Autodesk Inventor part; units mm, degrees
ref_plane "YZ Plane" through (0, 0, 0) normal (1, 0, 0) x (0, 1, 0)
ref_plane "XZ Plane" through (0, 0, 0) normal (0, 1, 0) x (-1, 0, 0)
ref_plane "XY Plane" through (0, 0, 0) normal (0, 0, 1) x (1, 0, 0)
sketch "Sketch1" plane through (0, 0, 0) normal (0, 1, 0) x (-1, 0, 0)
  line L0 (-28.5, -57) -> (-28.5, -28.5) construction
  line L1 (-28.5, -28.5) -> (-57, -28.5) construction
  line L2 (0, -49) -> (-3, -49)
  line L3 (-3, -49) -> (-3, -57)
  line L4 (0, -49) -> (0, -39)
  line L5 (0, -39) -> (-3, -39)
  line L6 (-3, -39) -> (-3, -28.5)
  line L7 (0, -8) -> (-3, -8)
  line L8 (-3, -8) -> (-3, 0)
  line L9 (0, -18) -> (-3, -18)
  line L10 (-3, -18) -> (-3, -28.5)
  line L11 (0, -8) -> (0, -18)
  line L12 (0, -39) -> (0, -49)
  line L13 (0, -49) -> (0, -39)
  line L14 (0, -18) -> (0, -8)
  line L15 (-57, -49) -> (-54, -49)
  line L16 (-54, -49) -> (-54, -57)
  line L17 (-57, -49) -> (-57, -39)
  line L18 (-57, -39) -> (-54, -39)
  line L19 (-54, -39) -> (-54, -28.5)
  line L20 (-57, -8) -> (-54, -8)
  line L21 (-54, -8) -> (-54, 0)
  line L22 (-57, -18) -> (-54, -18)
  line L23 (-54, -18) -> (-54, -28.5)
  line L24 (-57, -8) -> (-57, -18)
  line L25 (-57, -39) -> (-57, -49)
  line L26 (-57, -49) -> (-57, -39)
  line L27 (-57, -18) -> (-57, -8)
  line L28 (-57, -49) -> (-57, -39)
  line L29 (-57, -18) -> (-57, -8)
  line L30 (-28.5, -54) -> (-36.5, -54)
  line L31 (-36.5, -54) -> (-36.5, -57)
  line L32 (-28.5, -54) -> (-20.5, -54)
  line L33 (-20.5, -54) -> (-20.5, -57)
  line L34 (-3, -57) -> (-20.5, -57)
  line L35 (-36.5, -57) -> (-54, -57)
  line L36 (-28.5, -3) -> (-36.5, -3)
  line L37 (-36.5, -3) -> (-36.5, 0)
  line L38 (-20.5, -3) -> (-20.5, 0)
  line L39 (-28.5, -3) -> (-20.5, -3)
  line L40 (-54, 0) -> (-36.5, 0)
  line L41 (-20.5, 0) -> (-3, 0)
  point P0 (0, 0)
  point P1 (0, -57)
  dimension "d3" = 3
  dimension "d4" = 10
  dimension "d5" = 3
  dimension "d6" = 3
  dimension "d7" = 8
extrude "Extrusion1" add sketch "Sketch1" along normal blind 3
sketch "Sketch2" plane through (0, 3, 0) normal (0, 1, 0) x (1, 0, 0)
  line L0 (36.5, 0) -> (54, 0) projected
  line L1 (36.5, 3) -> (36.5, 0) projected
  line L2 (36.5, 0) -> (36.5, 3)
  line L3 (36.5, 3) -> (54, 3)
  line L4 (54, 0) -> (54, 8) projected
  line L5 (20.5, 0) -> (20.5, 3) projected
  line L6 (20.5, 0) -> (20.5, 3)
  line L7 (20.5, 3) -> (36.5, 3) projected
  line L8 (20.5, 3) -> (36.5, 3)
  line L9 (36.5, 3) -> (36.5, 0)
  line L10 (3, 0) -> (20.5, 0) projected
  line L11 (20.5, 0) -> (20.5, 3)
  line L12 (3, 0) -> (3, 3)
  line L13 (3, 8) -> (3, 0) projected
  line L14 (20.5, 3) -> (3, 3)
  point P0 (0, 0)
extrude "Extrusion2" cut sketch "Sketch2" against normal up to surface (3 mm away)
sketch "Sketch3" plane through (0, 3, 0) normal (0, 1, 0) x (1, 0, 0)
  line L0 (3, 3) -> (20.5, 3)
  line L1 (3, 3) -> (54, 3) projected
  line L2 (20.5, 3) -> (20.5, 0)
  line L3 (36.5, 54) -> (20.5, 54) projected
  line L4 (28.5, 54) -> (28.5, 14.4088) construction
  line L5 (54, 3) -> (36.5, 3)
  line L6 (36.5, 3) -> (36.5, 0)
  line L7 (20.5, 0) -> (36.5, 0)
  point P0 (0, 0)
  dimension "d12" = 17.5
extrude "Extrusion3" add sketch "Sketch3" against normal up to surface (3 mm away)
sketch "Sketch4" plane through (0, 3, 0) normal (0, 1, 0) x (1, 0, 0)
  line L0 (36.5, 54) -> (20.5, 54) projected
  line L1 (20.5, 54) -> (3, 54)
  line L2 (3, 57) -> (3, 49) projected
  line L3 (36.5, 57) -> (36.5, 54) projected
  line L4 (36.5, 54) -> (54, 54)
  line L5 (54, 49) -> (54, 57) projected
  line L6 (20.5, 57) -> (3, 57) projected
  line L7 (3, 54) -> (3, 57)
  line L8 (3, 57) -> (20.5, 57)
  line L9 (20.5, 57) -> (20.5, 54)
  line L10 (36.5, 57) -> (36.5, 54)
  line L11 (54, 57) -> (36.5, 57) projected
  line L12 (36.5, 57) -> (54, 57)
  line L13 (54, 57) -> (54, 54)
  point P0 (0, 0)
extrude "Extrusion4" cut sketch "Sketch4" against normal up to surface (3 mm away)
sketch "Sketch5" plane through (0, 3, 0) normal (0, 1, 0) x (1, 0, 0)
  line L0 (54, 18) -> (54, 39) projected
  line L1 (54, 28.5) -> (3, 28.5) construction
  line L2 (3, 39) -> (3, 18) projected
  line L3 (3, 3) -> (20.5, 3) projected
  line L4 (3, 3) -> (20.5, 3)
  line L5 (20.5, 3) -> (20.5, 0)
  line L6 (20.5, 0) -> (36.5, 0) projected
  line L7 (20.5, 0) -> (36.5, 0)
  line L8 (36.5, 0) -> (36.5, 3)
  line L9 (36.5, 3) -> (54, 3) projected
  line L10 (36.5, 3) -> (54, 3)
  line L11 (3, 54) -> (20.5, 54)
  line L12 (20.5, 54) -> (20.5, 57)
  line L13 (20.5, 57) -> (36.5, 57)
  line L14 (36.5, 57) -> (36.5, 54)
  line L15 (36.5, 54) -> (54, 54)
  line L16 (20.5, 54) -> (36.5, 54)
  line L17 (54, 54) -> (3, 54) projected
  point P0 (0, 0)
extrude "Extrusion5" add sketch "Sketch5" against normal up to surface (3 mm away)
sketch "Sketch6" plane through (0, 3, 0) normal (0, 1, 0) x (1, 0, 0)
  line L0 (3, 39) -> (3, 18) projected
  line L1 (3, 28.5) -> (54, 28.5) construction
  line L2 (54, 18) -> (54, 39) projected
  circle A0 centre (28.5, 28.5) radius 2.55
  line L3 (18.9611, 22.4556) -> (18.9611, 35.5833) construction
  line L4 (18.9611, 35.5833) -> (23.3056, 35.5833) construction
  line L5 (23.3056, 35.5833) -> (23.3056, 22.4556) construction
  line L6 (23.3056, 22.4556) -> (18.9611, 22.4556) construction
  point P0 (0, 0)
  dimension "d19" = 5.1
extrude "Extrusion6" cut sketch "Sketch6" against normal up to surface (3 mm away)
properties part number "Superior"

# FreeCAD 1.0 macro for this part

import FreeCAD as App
import Part
import Sketcher

V = App.Vector

doc = App.newDocument("Part")
body = doc.addObject("PartDesign::Body", "Body")

sketch1 = body.newObject("Sketcher::SketchObject", "Sketch")
sketch1.AttachmentSupport = (doc.getObject("XZ_Plane"), [""])
sketch1.MapMode = "FlatFace"
sketch1.addGeometry(Part.LineSegment(V(3, -49, 0), V(0, -49, 0)), False)
sketch1.addGeometry(Part.LineSegment(V(0, -49, 0), V(0, -39, 0)), False)
sketch1.addGeometry(Part.LineSegment(V(0, -39, 0), V(3, -39, 0)), False)
sketch1.addGeometry(Part.LineSegment(V(3, -39, 0), V(3, -18, 0)), False)
sketch1.addGeometry(Part.LineSegment(V(3, -18, 0), V(0, -18, 0)), False)
sketch1.addGeometry(Part.LineSegment(V(0, -18, 0), V(0, -8, 0)), False)
sketch1.addGeometry(Part.LineSegment(V(0, -8, 0), V(3, -8, 0)), False)
sketch1.addGeometry(Part.LineSegment(V(3, -8, 0), V(3, 0, 0)), False)
sketch1.addGeometry(Part.LineSegment(V(3, 0, 0), V(20.5, 0, 0)), False)
sketch1.addGeometry(Part.LineSegment(V(20.5, 0, 0), V(20.5, -3, 0)), False)
sketch1.addGeometry(Part.LineSegment(V(20.5, -3, 0), V(36.5, -3, 0)), False)
sketch1.addGeometry(Part.LineSegment(V(36.5, -3, 0), V(36.5, 0, 0)), False)
sketch1.addGeometry(Part.LineSegment(V(36.5, 0, 0), V(54, 0, 0)), False)
sketch1.addGeometry(Part.LineSegment(V(54, 0, 0), V(54, -8, 0)), False)
sketch1.addGeometry(Part.LineSegment(V(54, -8, 0), V(57, -8, 0)), False)
sketch1.addGeometry(Part.LineSegment(V(57, -8, 0), V(57, -18, 0)), False)
sketch1.addGeometry(Part.LineSegment(V(57, -18, 0), V(54, -18, 0)), False)
sketch1.addGeometry(Part.LineSegment(V(54, -18, 0), V(54, -39, 0)), False)
sketch1.addGeometry(Part.LineSegment(V(54, -39, 0), V(57, -39, 0)), False)
sketch1.addGeometry(Part.LineSegment(V(57, -39, 0), V(57, -49, 0)), False)
sketch1.addGeometry(Part.LineSegment(V(57, -49, 0), V(54, -49, 0)), False)
sketch1.addGeometry(Part.LineSegment(V(54, -49, 0), V(54, -57, 0)), False)
sketch1.addGeometry(Part.LineSegment(V(54, -57, 0), V(36.5, -57, 0)), False)
sketch1.addGeometry(Part.LineSegment(V(36.5, -57, 0), V(36.5, -54, 0)), False)
sketch1.addGeometry(Part.LineSegment(V(36.5, -54, 0), V(20.5, -54, 0)), False)
sketch1.addGeometry(Part.LineSegment(V(20.5, -54, 0), V(20.5, -57, 0)), False)
sketch1.addGeometry(Part.LineSegment(V(20.5, -57, 0), V(3, -57, 0)), False)
sketch1.addGeometry(Part.LineSegment(V(3, -57, 0), V(3, -49, 0)), False)
sketch1.addConstraint(Sketcher.Constraint("Coincident", 0, 2, 1, 1))
sketch1.addConstraint(Sketcher.Constraint("Coincident", 1, 2, 2, 1))
sketch1.addConstraint(Sketcher.Constraint("Coincident", 2, 2, 3, 1))
sketch1.addConstraint(Sketcher.Constraint("Coincident", 3, 2, 4, 1))
sketch1.addConstraint(Sketcher.Constraint("Coincident", 4, 2, 5, 1))
sketch1.addConstraint(Sketcher.Constraint("Coincident", 5, 2, 6, 1))
sketch1.addConstraint(Sketcher.Constraint("Coincident", 6, 2, 7, 1))
sketch1.addConstraint(Sketcher.Constraint("Coincident", 7, 2, 8, 1))
sketch1.addConstraint(Sketcher.Constraint("Coincident", 8, 2, 9, 1))
sketch1.addConstraint(Sketcher.Constraint("Coincident", 9, 2, 10, 1))
sketch1.addConstraint(Sketcher.Constraint("Coincident", 10, 2, 11, 1))
sketch1.addConstraint(Sketcher.Constraint("Coincident", 11, 2, 12, 1))
sketch1.addConstraint(Sketcher.Constraint("Coincident", 12, 2, 13, 1))
sketch1.addConstraint(Sketcher.Constraint("Coincident", 13, 2, 14, 1))
sketch1.addConstraint(Sketcher.Constraint("Coincident", 14, 2, 15, 1))
sketch1.addConstraint(Sketcher.Constraint("Coincident", 15, 2, 16, 1))
sketch1.addConstraint(Sketcher.Constraint("Coincident", 16, 2, 17, 1))
sketch1.addConstraint(Sketcher.Constraint("Coincident", 17, 2, 18, 1))
sketch1.addConstraint(Sketcher.Constraint("Coincident", 18, 2, 19, 1))
sketch1.addConstraint(Sketcher.Constraint("Coincident", 19, 2, 20, 1))
sketch1.addConstraint(Sketcher.Constraint("Coincident", 20, 2, 21, 1))
sketch1.addConstraint(Sketcher.Constraint("Coincident", 21, 2, 22, 1))
sketch1.addConstraint(Sketcher.Constraint("Coincident", 22, 2, 23, 1))
sketch1.addConstraint(Sketcher.Constraint("Coincident", 23, 2, 24, 1))
sketch1.addConstraint(Sketcher.Constraint("Coincident", 24, 2, 25, 1))
sketch1.addConstraint(Sketcher.Constraint("Coincident", 25, 2, 26, 1))
sketch1.addConstraint(Sketcher.Constraint("Coincident", 26, 2, 27, 1))
sketch1.addConstraint(Sketcher.Constraint("Coincident", 27, 2, 0, 1))
sketch1.addConstraint(Sketcher.Constraint("Horizontal", 0))
sketch1.addConstraint(Sketcher.Constraint("Vertical", 1))
sketch1.addConstraint(Sketcher.Constraint("Horizontal", 2))
sketch1.addConstraint(Sketcher.Constraint("Vertical", 3))
sketch1.addConstraint(Sketcher.Constraint("Horizontal", 4))
sketch1.addConstraint(Sketcher.Constraint("Vertical", 5))
sketch1.addConstraint(Sketcher.Constraint("Horizontal", 6))
sketch1.addConstraint(Sketcher.Constraint("Vertical", 7))
sketch1.addConstraint(Sketcher.Constraint("Horizontal", 8))
sketch1.addConstraint(Sketcher.Constraint("Vertical", 9))
sketch1.addConstraint(Sketcher.Constraint("Horizontal", 10))
sketch1.addConstraint(Sketcher.Constraint("Vertical", 11))
sketch1.addConstraint(Sketcher.Constraint("Horizontal", 12))
sketch1.addConstraint(Sketcher.Constraint("Vertical", 13))
sketch1.addConstraint(Sketcher.Constraint("Horizontal", 14))
sketch1.addConstraint(Sketcher.Constraint("Vertical", 15))
sketch1.addConstraint(Sketcher.Constraint("Horizontal", 16))
sketch1.addConstraint(Sketcher.Constraint("Vertical", 17))
sketch1.addConstraint(Sketcher.Constraint("Horizontal", 18))
sketch1.addConstraint(Sketcher.Constraint("Vertical", 19))
sketch1.addConstraint(Sketcher.Constraint("Horizontal", 20))
sketch1.addConstraint(Sketcher.Constraint("Vertical", 21))
sketch1.addConstraint(Sketcher.Constraint("Horizontal", 22))
sketch1.addConstraint(Sketcher.Constraint("Vertical", 23))
sketch1.addConstraint(Sketcher.Constraint("Horizontal", 24))
sketch1.addConstraint(Sketcher.Constraint("Vertical", 25))
sketch1.addConstraint(Sketcher.Constraint("Horizontal", 26))
sketch1.addConstraint(Sketcher.Constraint("Vertical", 27))
sketch1.addConstraint(Sketcher.Constraint("PointOnObject", 0, 2, -2))
sketch1.addConstraint(Sketcher.Constraint("PointOnObject", 4, 2, -2))
sketch1.addConstraint(Sketcher.Constraint("PointOnObject", 7, 2, -1))
sketch1.addConstraint(Sketcher.Constraint("PointOnObject", 11, 2, -1))
sketch1.addConstraint(Sketcher.Constraint("Horizontal", 6, 2, 13, 2))
sketch1.addConstraint(Sketcher.Constraint("Horizontal", 4, 2, 15, 2))
sketch1.addConstraint(Sketcher.Constraint("Horizontal", 2, 2, 17, 2))
sketch1.addConstraint(Sketcher.Constraint("Horizontal", 0, 2, 19, 2))
sketch1.addConstraint(Sketcher.Constraint("Horizontal", 22, 2, 25, 2))
sketch1.addConstraint(Sketcher.Constraint("Vertical", 3, 2, 6, 2))
sketch1.addConstraint(Sketcher.Constraint("Vertical", 13, 2, 16, 2))
sketch1.addConstraint(Sketcher.Constraint("Vertical", 15, 2, 18, 2))
sketch1.addConstraint(Sketcher.Constraint("Vertical", 17, 2, 20, 2))
sketch1.addConstraint(Sketcher.Constraint("Vertical", 11, 2, 22, 2))
sketch1.addConstraint(Sketcher.Constraint("Vertical", 9, 2, 24, 2))
sketch1.addConstraint(Sketcher.Constraint("Vertical", 7, 2, 26, 2))
sketch1.addConstraint(Sketcher.Constraint("Equal", 8, 12))
sketch1.addConstraint(Sketcher.Constraint("Equal", 6, 14))
sketch1.addConstraint(Sketcher.Constraint("Equal", 1, 5))
sketch1.addConstraint(Sketcher.Constraint("Equal", 20, 9))
sketch1.addConstraint(Sketcher.Constraint("Equal", 13, 21))
sketch1.addConstraint(Sketcher.Constraint("Equal", 11, 23))
sketch1.addConstraint(Sketcher.Constraint("DistanceX", 0, 2, 0, 1, 3.0))
sketch1.addConstraint(Sketcher.Constraint("DistanceY", 1, 1, 1, 2, 10.0))
sketch1.addConstraint(Sketcher.Constraint("DistanceY", 7, 1, 7, 2, 8.0))
sketch1.addConstraint(Sketcher.Constraint("DistanceX", 10, 1, 10, 2, 16.0))
sketch1.addConstraint(Sketcher.Constraint("DistanceY", 3, 1, 3, 2, 21.0))
sketch1.addConstraint(Sketcher.Constraint("DistanceX", 8, 1, 8, 2, 17.5))
pad1 = body.newObject("PartDesign::Pad", "Pad")
pad1.Profile = sketch1
pad1.Length = 3
pad1.Reversed = True

sketch2 = body.newObject("Sketcher::SketchObject", "Sketch001")
sketch2.AttachmentSupport = (doc.getObject("XZ_Plane"), [""])
sketch2.MapMode = "FlatFace"
sketch2.AttachmentOffset = App.Placement(V(0, 0, -3), App.Rotation())
sketch2.addGeometry(Part.LineSegment(V(36.5, -3, 0), V(36.5, 0, 0)), False)
sketch2.addGeometry(Part.LineSegment(V(36.5, 0, 0), V(54, 0, 0)), False)
sketch2.addGeometry(Part.LineSegment(V(54, 0, 0), V(54, -3, 0)), False)
sketch2.addGeometry(Part.LineSegment(V(54, -3, 0), V(36.5, -3, 0)), False)
sketch2.addGeometry(Part.LineSegment(V(20.5, 0, 0), V(20.5, -3, 0)), False)
sketch2.addGeometry(Part.LineSegment(V(20.5, -3, 0), V(3, -3, 0)), False)
sketch2.addGeometry(Part.LineSegment(V(3, -3, 0), V(3, 0, 0)), False)
sketch2.addGeometry(Part.LineSegment(V(3, 0, 0), V(20.5, 0, 0)), False)
sketch2.addConstraint(Sketcher.Constraint("Coincident", 0, 2, 1, 1))
sketch2.addConstraint(Sketcher.Constraint("Coincident", 1, 2, 2, 1))
sketch2.addConstraint(Sketcher.Constraint("Coincident", 2, 2, 3, 1))
sketch2.addConstraint(Sketcher.Constraint("Coincident", 3, 2, 0, 1))
sketch2.addConstraint(Sketcher.Constraint("Coincident", 4, 2, 5, 1))
sketch2.addConstraint(Sketcher.Constraint("Coincident", 5, 2, 6, 1))
sketch2.addConstraint(Sketcher.Constraint("Coincident", 6, 2, 7, 1))
sketch2.addConstraint(Sketcher.Constraint("Coincident", 7, 2, 4, 1))
sketch2.addConstraint(Sketcher.Constraint("Vertical", 0))
sketch2.addConstraint(Sketcher.Constraint("Horizontal", 1))
sketch2.addConstraint(Sketcher.Constraint("Vertical", 2))
sketch2.addConstraint(Sketcher.Constraint("Horizontal", 3))
sketch2.addConstraint(Sketcher.Constraint("Vertical", 4))
sketch2.addConstraint(Sketcher.Constraint("Horizontal", 5))
sketch2.addConstraint(Sketcher.Constraint("Vertical", 6))
sketch2.addConstraint(Sketcher.Constraint("Horizontal", 7))
sketch2.addConstraint(Sketcher.Constraint("PointOnObject", 0, 2, -1))
sketch2.addConstraint(Sketcher.Constraint("PointOnObject", 6, 2, -1))
sketch2.addConstraint(Sketcher.Constraint("Horizontal", 3, 2, 4, 2))
sketch2.addConstraint(Sketcher.Constraint("Equal", 3, 5))
sketch2.addConstraint(Sketcher.Constraint("DistanceY", 0, 1, 0, 2, 3.0))
sketch2.addConstraint(Sketcher.Constraint("DistanceX", 1, 1, 1, 2, 17.5))
sketch2.addConstraint(Sketcher.Constraint("DistanceX", -1, 1, 1, 2, 54.0))
sketch2.addConstraint(Sketcher.Constraint("DistanceX", -1, 1, 5, 2, 3.0))
pocket1 = body.newObject("PartDesign::Pocket", "Pocket")
pocket1.Profile = sketch2
pocket1.Length = 3
pocket1.Reversed = True

sketch3 = body.newObject("Sketcher::SketchObject", "Sketch002")
sketch3.AttachmentSupport = (doc.getObject("XZ_Plane"), [""])
sketch3.MapMode = "FlatFace"
sketch3.AttachmentOffset = App.Placement(V(0, 0, -3), App.Rotation())
sketch3.addGeometry(Part.LineSegment(V(36.5, -3, 0), V(20.5, -3, 0)), False)
sketch3.addGeometry(Part.LineSegment(V(20.5, -3, 0), V(20.5, 0, 0)), False)
sketch3.addGeometry(Part.LineSegment(V(20.5, 0, 0), V(36.5, 0, 0)), False)
sketch3.addGeometry(Part.LineSegment(V(36.5, 0, 0), V(36.5, -3, 0)), False)
sketch3.addConstraint(Sketcher.Constraint("Coincident", 0, 2, 1, 1))
sketch3.addConstraint(Sketcher.Constraint("Coincident", 1, 2, 2, 1))
sketch3.addConstraint(Sketcher.Constraint("Coincident", 2, 2, 3, 1))
sketch3.addConstraint(Sketcher.Constraint("Coincident", 3, 2, 0, 1))
sketch3.addConstraint(Sketcher.Constraint("Horizontal", 0))
sketch3.addConstraint(Sketcher.Constraint("Vertical", 1))
sketch3.addConstraint(Sketcher.Constraint("Horizontal", 2))
sketch3.addConstraint(Sketcher.Constraint("Vertical", 3))
sketch3.addConstraint(Sketcher.Constraint("PointOnObject", 1, 2, -1))
sketch3.addConstraint(Sketcher.Constraint("DistanceX", 0, 2, 0, 1, 16.0))
sketch3.addConstraint(Sketcher.Constraint("DistanceY", 1, 1, 1, 2, 3.0))
sketch3.addConstraint(Sketcher.Constraint("DistanceX", -1, 1, 0, 2, 20.5))
pad2 = body.newObject("PartDesign::Pad", "Pad001")
pad2.Profile = sketch3
pad2.Length = 3

sketch4 = body.newObject("Sketcher::SketchObject", "Sketch003")
sketch4.AttachmentSupport = (doc.getObject("XZ_Plane"), [""])
sketch4.MapMode = "FlatFace"
sketch4.AttachmentOffset = App.Placement(V(0, 0, -3), App.Rotation())
sketch4.addGeometry(Part.LineSegment(V(3, -54, 0), V(20.5, -54, 0)), False)
sketch4.addGeometry(Part.LineSegment(V(20.5, -54, 0), V(20.5, -57, 0)), False)
sketch4.addGeometry(Part.LineSegment(V(20.5, -57, 0), V(3, -57, 0)), False)
sketch4.addGeometry(Part.LineSegment(V(3, -57, 0), V(3, -54, 0)), False)
sketch4.addGeometry(Part.LineSegment(V(36.5, -57, 0), V(36.5, -54, 0)), False)
sketch4.addGeometry(Part.LineSegment(V(36.5, -54, 0), V(54, -54, 0)), False)
sketch4.addGeometry(Part.LineSegment(V(54, -54, 0), V(54, -57, 0)), False)
sketch4.addGeometry(Part.LineSegment(V(54, -57, 0), V(36.5, -57, 0)), False)
sketch4.addConstraint(Sketcher.Constraint("Coincident", 0, 2, 1, 1))
sketch4.addConstraint(Sketcher.Constraint("Coincident", 1, 2, 2, 1))
sketch4.addConstraint(Sketcher.Constraint("Coincident", 2, 2, 3, 1))
sketch4.addConstraint(Sketcher.Constraint("Coincident", 3, 2, 0, 1))
sketch4.addConstraint(Sketcher.Constraint("Coincident", 4, 2, 5, 1))
sketch4.addConstraint(Sketcher.Constraint("Coincident", 5, 2, 6, 1))
sketch4.addConstraint(Sketcher.Constraint("Coincident", 6, 2, 7, 1))
sketch4.addConstraint(Sketcher.Constraint("Coincident", 7, 2, 4, 1))
sketch4.addConstraint(Sketcher.Constraint("Horizontal", 0))
sketch4.addConstraint(Sketcher.Constraint("Vertical", 1))
sketch4.addConstraint(Sketcher.Constraint("Horizontal", 2))
sketch4.addConstraint(Sketcher.Constraint("Vertical", 3))
sketch4.addConstraint(Sketcher.Constraint("Vertical", 4))
sketch4.addConstraint(Sketcher.Constraint("Horizontal", 5))
sketch4.addConstraint(Sketcher.Constraint("Vertical", 6))
sketch4.addConstraint(Sketcher.Constraint("Horizontal", 7))
sketch4.addConstraint(Sketcher.Constraint("Horizontal", 3, 2, 4, 2))
sketch4.addConstraint(Sketcher.Constraint("Horizontal", 2, 2, 6, 2))
sketch4.addConstraint(Sketcher.Constraint("Equal", 2, 5))
sketch4.addConstraint(Sketcher.Constraint("DistanceY", 1, 2, 1, 1, 3.0))
sketch4.addConstraint(Sketcher.Constraint("DistanceX", 0, 1, 0, 2, 17.5))
sketch4.addConstraint(Sketcher.Constraint("DistanceY", 0, 2, -1, 1, 54.0))
sketch4.addConstraint(Sketcher.Constraint("DistanceX", -1, 1, 2, 2, 3.0))
sketch4.addConstraint(Sketcher.Constraint("DistanceX", -1, 1, 5, 2, 54.0))
pocket2 = body.newObject("PartDesign::Pocket", "Pocket001")
pocket2.Profile = sketch4
pocket2.Length = 3
pocket2.Reversed = True

sketch5 = body.newObject("Sketcher::SketchObject", "Sketch004")
sketch5.AttachmentSupport = (doc.getObject("XZ_Plane"), [""])
sketch5.MapMode = "FlatFace"
sketch5.AttachmentOffset = App.Placement(V(0, 0, -3), App.Rotation())
sketch5.addGeometry(Part.LineSegment(V(20.5, -57, 0), V(20.5, -54, 0)), False)
sketch5.addGeometry(Part.LineSegment(V(20.5, -54, 0), V(36.5, -54, 0)), False)
sketch5.addGeometry(Part.LineSegment(V(36.5, -54, 0), V(36.5, -57, 0)), False)
sketch5.addGeometry(Part.LineSegment(V(36.5, -57, 0), V(20.5, -57, 0)), False)
sketch5.addConstraint(Sketcher.Constraint("Coincident", 0, 2, 1, 1))
sketch5.addConstraint(Sketcher.Constraint("Coincident", 1, 2, 2, 1))
sketch5.addConstraint(Sketcher.Constraint("Coincident", 2, 2, 3, 1))
sketch5.addConstraint(Sketcher.Constraint("Coincident", 3, 2, 0, 1))
sketch5.addConstraint(Sketcher.Constraint("Vertical", 0))
sketch5.addConstraint(Sketcher.Constraint("Horizontal", 1))
sketch5.addConstraint(Sketcher.Constraint("Vertical", 2))
sketch5.addConstraint(Sketcher.Constraint("Horizontal", 3))
sketch5.addConstraint(Sketcher.Constraint("DistanceX", 1, 1, 1, 2, 16.0))
sketch5.addConstraint(Sketcher.Constraint("DistanceY", 0, 1, 0, 2, 3.0))
sketch5.addConstraint(Sketcher.Constraint("DistanceY", 0, 2, -1, 1, 54.0))
sketch5.addConstraint(Sketcher.Constraint("DistanceX", -1, 1, 0, 2, 20.5))
pad3 = body.newObject("PartDesign::Pad", "Pad002")
pad3.Profile = sketch5
pad3.Length = 3

sketch6 = body.newObject("Sketcher::SketchObject", "Sketch005")
sketch6.AttachmentSupport = (doc.getObject("XZ_Plane"), [""])
sketch6.MapMode = "FlatFace"
sketch6.AttachmentOffset = App.Placement(V(0, 0, -3), App.Rotation())
sketch6.addGeometry(Part.Circle(V(28.5, -28.5, 0), V(0, 0, 1), 2.5), False)
sketch6.addConstraint(Sketcher.Constraint("Diameter", 0, 5.1))
sketch6.addConstraint(Sketcher.Constraint("DistanceX", -1, 1, 0, 3, 28.5))
sketch6.addConstraint(Sketcher.Constraint("DistanceY", 0, 3, -1, 1, 28.5))
pocket3 = body.newObject("PartDesign::Pocket", "Pocket002")
pocket3.Profile = sketch6
pocket3.Length = 3
pocket3.Reversed = True

doc.recompute()
